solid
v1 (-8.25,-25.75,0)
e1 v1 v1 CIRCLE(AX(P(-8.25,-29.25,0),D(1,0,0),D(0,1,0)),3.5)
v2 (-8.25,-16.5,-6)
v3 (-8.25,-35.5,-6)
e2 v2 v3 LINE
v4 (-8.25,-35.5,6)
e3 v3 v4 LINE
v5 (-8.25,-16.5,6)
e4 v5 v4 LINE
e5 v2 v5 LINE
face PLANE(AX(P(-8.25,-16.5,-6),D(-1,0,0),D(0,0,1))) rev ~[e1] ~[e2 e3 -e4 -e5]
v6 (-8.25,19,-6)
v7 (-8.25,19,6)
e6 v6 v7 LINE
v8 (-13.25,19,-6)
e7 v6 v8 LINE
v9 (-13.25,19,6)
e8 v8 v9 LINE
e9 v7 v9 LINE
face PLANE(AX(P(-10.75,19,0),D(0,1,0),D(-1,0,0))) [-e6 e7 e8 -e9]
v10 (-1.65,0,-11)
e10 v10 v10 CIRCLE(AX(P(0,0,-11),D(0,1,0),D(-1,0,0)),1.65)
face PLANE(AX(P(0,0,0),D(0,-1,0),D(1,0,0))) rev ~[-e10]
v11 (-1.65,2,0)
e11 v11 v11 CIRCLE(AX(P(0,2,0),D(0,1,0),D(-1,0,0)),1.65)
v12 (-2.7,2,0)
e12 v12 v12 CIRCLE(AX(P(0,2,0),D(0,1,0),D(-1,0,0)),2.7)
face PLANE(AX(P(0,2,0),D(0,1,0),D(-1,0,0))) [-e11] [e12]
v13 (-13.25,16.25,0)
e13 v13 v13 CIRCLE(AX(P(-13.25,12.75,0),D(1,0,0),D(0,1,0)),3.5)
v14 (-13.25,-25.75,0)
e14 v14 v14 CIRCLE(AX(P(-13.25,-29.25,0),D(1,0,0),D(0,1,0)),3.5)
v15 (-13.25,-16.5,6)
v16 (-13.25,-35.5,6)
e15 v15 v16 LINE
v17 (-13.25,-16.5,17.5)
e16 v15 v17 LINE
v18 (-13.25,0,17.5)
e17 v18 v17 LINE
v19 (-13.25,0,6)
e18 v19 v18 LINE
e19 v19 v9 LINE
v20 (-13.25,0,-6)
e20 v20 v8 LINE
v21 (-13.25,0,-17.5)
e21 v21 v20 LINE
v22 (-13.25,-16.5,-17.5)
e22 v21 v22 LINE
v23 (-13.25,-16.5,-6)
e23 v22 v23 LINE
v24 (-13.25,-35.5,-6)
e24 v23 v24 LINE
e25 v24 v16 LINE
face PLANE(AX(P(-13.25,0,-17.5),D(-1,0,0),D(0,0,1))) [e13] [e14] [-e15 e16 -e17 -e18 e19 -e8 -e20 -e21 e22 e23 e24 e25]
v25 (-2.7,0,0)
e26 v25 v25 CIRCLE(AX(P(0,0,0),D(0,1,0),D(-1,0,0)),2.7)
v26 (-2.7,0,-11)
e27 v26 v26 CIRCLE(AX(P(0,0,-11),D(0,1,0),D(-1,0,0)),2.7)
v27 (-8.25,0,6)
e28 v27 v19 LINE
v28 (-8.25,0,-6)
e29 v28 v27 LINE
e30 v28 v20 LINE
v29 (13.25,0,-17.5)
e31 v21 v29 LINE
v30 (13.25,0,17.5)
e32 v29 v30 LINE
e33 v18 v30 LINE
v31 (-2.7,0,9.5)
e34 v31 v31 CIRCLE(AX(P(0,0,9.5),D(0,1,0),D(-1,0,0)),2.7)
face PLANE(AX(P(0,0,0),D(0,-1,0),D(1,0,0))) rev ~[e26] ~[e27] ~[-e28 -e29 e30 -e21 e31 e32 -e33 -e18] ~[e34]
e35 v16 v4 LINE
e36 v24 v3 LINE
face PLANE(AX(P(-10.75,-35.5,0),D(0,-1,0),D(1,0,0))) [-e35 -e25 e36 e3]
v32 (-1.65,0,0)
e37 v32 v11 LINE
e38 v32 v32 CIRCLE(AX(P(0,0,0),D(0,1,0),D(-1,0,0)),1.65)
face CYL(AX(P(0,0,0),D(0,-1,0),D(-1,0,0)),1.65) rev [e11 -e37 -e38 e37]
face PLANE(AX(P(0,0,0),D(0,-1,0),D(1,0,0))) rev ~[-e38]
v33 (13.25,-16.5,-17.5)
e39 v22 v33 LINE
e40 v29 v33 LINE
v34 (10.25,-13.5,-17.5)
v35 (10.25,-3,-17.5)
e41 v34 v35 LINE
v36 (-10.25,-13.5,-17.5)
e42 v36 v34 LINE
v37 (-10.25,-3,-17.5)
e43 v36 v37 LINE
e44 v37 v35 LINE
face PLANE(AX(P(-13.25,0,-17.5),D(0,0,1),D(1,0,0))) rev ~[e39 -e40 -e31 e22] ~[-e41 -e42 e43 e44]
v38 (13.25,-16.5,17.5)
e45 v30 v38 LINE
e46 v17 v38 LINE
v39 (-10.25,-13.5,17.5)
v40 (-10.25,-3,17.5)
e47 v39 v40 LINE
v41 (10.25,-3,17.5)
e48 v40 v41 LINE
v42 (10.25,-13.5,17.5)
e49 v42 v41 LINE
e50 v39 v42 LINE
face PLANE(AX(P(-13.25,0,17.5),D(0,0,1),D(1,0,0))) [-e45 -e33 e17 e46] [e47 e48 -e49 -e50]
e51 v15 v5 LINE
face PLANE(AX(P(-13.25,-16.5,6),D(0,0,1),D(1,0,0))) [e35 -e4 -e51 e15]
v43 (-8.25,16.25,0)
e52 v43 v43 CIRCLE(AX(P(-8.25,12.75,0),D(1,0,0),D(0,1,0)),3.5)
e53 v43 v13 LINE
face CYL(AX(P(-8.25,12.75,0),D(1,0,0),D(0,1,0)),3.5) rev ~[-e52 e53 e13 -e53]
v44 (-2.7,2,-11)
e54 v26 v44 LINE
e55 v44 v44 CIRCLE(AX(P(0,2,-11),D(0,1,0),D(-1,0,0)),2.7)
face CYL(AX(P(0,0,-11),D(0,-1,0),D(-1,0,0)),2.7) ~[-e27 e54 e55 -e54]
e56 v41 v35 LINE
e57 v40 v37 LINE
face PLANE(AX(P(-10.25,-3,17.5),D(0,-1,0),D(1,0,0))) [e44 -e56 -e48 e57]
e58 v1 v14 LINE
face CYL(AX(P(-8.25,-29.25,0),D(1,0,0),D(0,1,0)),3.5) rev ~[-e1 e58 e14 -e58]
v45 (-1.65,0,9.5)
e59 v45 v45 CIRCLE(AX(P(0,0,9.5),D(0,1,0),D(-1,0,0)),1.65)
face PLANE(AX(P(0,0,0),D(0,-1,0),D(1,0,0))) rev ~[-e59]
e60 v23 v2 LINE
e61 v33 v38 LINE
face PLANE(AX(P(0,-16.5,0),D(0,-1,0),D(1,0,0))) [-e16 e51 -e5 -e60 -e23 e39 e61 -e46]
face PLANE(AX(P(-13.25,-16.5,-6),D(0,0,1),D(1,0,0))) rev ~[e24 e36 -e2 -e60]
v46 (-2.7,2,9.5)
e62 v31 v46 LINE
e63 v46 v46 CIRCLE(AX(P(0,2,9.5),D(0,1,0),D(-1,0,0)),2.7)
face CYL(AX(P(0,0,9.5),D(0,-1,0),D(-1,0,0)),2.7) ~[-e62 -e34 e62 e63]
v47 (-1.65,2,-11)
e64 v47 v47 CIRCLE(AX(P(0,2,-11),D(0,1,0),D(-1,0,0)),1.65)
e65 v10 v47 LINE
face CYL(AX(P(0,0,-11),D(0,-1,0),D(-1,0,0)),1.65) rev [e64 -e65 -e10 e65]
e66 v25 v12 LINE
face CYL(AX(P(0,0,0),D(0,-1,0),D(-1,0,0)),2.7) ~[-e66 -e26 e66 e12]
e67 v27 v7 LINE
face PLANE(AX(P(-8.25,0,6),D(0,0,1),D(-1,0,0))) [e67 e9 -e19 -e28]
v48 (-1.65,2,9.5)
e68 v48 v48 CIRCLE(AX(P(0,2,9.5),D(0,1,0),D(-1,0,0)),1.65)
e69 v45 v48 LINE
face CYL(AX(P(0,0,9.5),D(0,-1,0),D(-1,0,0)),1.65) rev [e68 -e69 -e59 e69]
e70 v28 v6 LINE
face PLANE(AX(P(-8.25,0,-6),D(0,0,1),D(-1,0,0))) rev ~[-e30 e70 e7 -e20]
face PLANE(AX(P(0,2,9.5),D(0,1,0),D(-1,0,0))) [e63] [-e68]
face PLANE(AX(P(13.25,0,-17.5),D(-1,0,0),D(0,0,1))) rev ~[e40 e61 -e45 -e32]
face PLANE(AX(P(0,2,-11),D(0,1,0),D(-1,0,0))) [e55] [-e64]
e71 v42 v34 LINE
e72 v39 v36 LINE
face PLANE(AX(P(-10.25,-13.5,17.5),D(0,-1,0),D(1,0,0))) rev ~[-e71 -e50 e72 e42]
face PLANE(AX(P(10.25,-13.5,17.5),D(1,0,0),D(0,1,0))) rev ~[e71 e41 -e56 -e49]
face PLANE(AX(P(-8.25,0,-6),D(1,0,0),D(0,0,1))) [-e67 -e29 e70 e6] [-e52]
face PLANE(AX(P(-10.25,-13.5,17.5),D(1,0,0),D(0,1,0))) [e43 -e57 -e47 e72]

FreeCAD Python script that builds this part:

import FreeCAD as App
import Part
import Sketcher

V = App.Vector


def add_polygon(sketch, points):
    """Adds a closed chain of lines whose ends are joined by coincident constraints."""
    first, n = sketch.GeometryCount, len(points)
    for a, b in zip(points, points[1:] + points[:1]):
        sketch.addGeometry(Part.LineSegment(App.Vector(*a, 0), App.Vector(*b, 0)), False)
    for i in range(n):
        sketch.addConstraint(Sketcher.Constraint("Coincident", first + i, 2, first + (i + 1) % n, 1))

doc = App.newDocument("Part")
params = doc.addObject("Spreadsheet::Sheet", "Params")
for row, (alias, value) in enumerate([
    ("sketch1_height", "35 mm"),
    ("sketch1_width", "26.5 mm"),
    ("pad1_length", "16.5 mm"),
    ("sketch2_width", "20.5 mm"),
    ("sketch2_height", "10.5 mm"),
    ("pocket1_length", "35 mm"),
    ("sketch3_diameter", "5.4 mm"),
    ("sketch3_diameter2", "3.3 mm"),
    ("pad2_length", "2 mm"),
    ("sketch4_width", "5 mm"),
    ("sketch4_height", "12 mm"),
    ("pad3_length", "19 mm"),
    ("sketch5_width", "5 mm"),
    ("sketch5_height", "12 mm"),
    ("pad4_length", "19 mm"),
    ("sketch6_diameter", "7 mm"),
    ("pocket2_length", "5 mm"),
    ("sketch7_diameter", "7 mm"),
    ("pocket3_length", "5 mm"),
], start=1):
    params.set(f"A{row}", alias)
    params.set(f"B{row}", "=" + value)
    params.setAlias(f"B{row}", alias)

body = doc.addObject("PartDesign::Body", "Body")

sketch1 = body.newObject("Sketcher::SketchObject", "Sketch")
sketch1.AttachmentSupport = (doc.getObject("XZ_Plane"), [""])
sketch1.MapMode = "FlatFace"
add_polygon(sketch1, [(-13, 18), (-13, -18), (13, -18), (13, 18)])
sketch1.addConstraint([
    Sketcher.Constraint("Vertical", 0),
    Sketcher.Constraint("Horizontal", 1),
    Sketcher.Constraint("Vertical", 2),
    Sketcher.Constraint("Horizontal", 3),
    Sketcher.Constraint("Symmetric", 0, 2, 2, 2, -1, 1),
    Sketcher.Constraint("DistanceY", 0, 2, 0, 1, 35.0),
    Sketcher.Constraint("DistanceX", 1, 1, 1, 2, 26.5),
])
sketch1.setExpression("Constraints[9]", "Params.sketch1_height")
sketch1.setExpression("Constraints[10]", "Params.sketch1_width")
pad1 = body.newObject("PartDesign::Pad", "Pad")
pad1.Profile = sketch1
pad1.setExpression("Length", "Params.pad1_length")

sketch2 = body.newObject("Sketcher::SketchObject", "Sketch001")
sketch2.AttachmentSupport = (doc.getObject("XY_Plane"), [""])
sketch2.MapMode = "FlatFace"
sketch2.AttachmentOffset = App.Placement(V(0, 0, 17.5), App.Rotation())
add_polygon(sketch2, [(-10, -3), (-10, -14), (10, -14), (10, -3)])
sketch2.addConstraint([
    Sketcher.Constraint("Vertical", 0),
    Sketcher.Constraint("Horizontal", 1),
    Sketcher.Constraint("Vertical", 2),
    Sketcher.Constraint("Horizontal", 3),
    Sketcher.Constraint("DistanceX", 1, 1, 1, 2, 20.5),
    Sketcher.Constraint("DistanceY", 0, 2, 0, 1, 10.5),
    Sketcher.Constraint("DistanceY", 2, 2, -1, 1, 3.0),
    Sketcher.Constraint("DistanceX", 0, 2, -1, 1, 10.25),
])
sketch2.setExpression("Constraints[8]", "Params.sketch2_width")
sketch2.setExpression("Constraints[9]", "Params.sketch2_height")
pocket1 = body.newObject("PartDesign::Pocket", "Pocket")
pocket1.Profile = sketch2
pocket1.setExpression("Length", "Params.pocket1_length")

sketch3 = body.newObject("Sketcher::SketchObject", "Sketch002")
sketch3.AttachmentSupport = (doc.getObject("XZ_Plane"), [""])
sketch3.MapMode = "FlatFace"
sketch3.addGeometry([
    Part.Circle(V(0, 0, 0), V(0, 0, 1), 2.7),
    Part.Circle(V(0, 0, 0), V(0, 0, 1), 1.6),
    Part.Circle(V(0, 9.5, 0), V(0, 0, 1), 2.7),
    Part.Circle(V(0, 9.5, 0), V(0, 0, 1), 1.6),
    Part.Circle(V(0, -11, 0), V(0, 0, 1), 2.7),
    Part.Circle(V(0, -11, 0), V(0, 0, 1), 1.6),
], False)
sketch3.addConstraint([
    Sketcher.Constraint("Coincident", 0, 3, -1, 1),
    Sketcher.Constraint("Coincident", 1, 3, -1, 1),
    Sketcher.Constraint("Coincident", 3, 3, 2, 3),
    Sketcher.Constraint("Coincident", 5, 3, 4, 3),
    Sketcher.Constraint("Equal", 0, 2),
    Sketcher.Constraint("Equal", 1, 3),
    Sketcher.Constraint("Equal", 2, 4),
    Sketcher.Constraint("Equal", 3, 5),
    Sketcher.Constraint("PointOnObject", 2, 3, -2),
    Sketcher.Constraint("PointOnObject", 4, 3, -2),
    Sketcher.Constraint("Diameter", 0, 5.4),
    Sketcher.Constraint("Diameter", 1, 3.3),
    Sketcher.Constraint("DistanceY", 4, 3, -1, 1, 11.0),
    Sketcher.Constraint("DistanceY", -1, 1, 2, 3, 9.5),
])
sketch3.setExpression("Constraints[10]", "Params.sketch3_diameter")
sketch3.setExpression("Constraints[11]", "Params.sketch3_diameter2")
pad2 = body.newObject("PartDesign::Pad", "Pad001")
pad2.Profile = sketch3
pad2.setExpression("Length", "Params.pad2_length")
pad2.Reversed = True

sketch4 = body.newObject("Sketcher::SketchObject", "Sketch003")
sketch4.AttachmentSupport = (doc.getObject("XZ_Plane"), [""])
sketch4.MapMode = "FlatFace"
sketch4.AttachmentOffset = App.Placement(V(0, 0, 16.5), App.Rotation())
add_polygon(sketch4, [(-13, 6), (-13, -6), (-8, -6), (-8, 6)])
sketch4.addConstraint([
    Sketcher.Constraint("Vertical", 0),
    Sketcher.Constraint("Horizontal", 1),
    Sketcher.Constraint("Vertical", 2),
    Sketcher.Constraint("Horizontal", 3),
    Sketcher.Constraint("DistanceX", 1, 1, 1, 2, 5.0),
    Sketcher.Constraint("DistanceY", 0, 2, 0, 1, 12.0),
    Sketcher.Constraint("DistanceY", 0, 2, -1, 1, 6.0),
    Sketcher.Constraint("DistanceX", 0, 2, -1, 1, 13.25),
])
sketch4.setExpression("Constraints[8]", "Params.sketch4_width")
sketch4.setExpression("Constraints[9]", "Params.sketch4_height")
pad3 = body.newObject("PartDesign::Pad", "Pad002")
pad3.Profile = sketch4
pad3.setExpression("Length", "Params.pad3_length")

sketch5 = body.newObject("Sketcher::SketchObject", "Sketch004")
sketch5.AttachmentSupport = (doc.getObject("XZ_Plane"), [""])
sketch5.MapMode = "FlatFace"
add_polygon(sketch5, [(-8, 6), (-8, -6), (-13, -6), (-13, 6)])
sketch5.addConstraint([
    Sketcher.Constraint("Vertical", 0),
    Sketcher.Constraint("Horizontal", 1),
    Sketcher.Constraint("Vertical", 2),
    Sketcher.Constraint("Horizontal", 3),
    Sketcher.Constraint("DistanceX", 1, 2, 1, 1, 5.0),
    Sketcher.Constraint("DistanceY", 0, 2, 0, 1, 12.0),
    Sketcher.Constraint("DistanceY", 0, 2, -1, 1, 6.0),
    Sketcher.Constraint("DistanceX", 0, 2, -1, 1, 8.25),
])
sketch5.setExpression("Constraints[8]", "Params.sketch5_width")
sketch5.setExpression("Constraints[9]", "Params.sketch5_height")
pad4 = body.newObject("PartDesign::Pad", "Pad003")
pad4.Profile = sketch5
pad4.setExpression("Length", "Params.pad4_length")
pad4.Reversed = True

sketch6 = body.newObject("Sketcher::SketchObject", "Sketch005")
sketch6.AttachmentSupport = (doc.getObject("YZ_Plane"), [""])
sketch6.MapMode = "FlatFace"
sketch6.AttachmentOffset = App.Placement(V(0, 0, -8.25), App.Rotation())
sketch6.addGeometry(Part.Circle(V(12.8, 0, 0), V(0, 0, 1), 3.5), False)
sketch6.addConstraint([
    Sketcher.Constraint("PointOnObject", 0, 3, -1),
    Sketcher.Constraint("Diameter", 0, 7.0),
    Sketcher.Constraint("DistanceX", -1, 1, 0, 3, 12.75),
])
sketch6.setExpression("Constraints[1]", "Params.sketch6_diameter")
pocket2 = body.newObject("PartDesign::Pocket", "Pocket001")
pocket2.Profile = sketch6
pocket2.setExpression("Length", "Params.pocket2_length")

sketch7 = body.newObject("Sketcher::SketchObject", "Sketch006")
sketch7.AttachmentSupport = (doc.getObject("YZ_Plane"), [""])
sketch7.MapMode = "FlatFace"
sketch7.AttachmentOffset = App.Placement(V(0, 0, -8.25), App.Rotation())
sketch7.addGeometry(Part.Circle(V(-29.2, 0, 0), V(0, 0, 1), 3.5), False)
sketch7.addConstraint([
    Sketcher.Constraint("PointOnObject", 0, 3, -1),
    Sketcher.Constraint("Diameter", 0, 7.0),
    Sketcher.Constraint("DistanceX", 0, 3, -1, 1, 29.25),
])
sketch7.setExpression("Constraints[1]", "Params.sketch7_diameter")
pocket3 = body.newObject("PartDesign::Pocket", "Pocket002")
pocket3.Profile = sketch7
pocket3.setExpression("Length", "Params.pocket3_length")

doc.recompute()
